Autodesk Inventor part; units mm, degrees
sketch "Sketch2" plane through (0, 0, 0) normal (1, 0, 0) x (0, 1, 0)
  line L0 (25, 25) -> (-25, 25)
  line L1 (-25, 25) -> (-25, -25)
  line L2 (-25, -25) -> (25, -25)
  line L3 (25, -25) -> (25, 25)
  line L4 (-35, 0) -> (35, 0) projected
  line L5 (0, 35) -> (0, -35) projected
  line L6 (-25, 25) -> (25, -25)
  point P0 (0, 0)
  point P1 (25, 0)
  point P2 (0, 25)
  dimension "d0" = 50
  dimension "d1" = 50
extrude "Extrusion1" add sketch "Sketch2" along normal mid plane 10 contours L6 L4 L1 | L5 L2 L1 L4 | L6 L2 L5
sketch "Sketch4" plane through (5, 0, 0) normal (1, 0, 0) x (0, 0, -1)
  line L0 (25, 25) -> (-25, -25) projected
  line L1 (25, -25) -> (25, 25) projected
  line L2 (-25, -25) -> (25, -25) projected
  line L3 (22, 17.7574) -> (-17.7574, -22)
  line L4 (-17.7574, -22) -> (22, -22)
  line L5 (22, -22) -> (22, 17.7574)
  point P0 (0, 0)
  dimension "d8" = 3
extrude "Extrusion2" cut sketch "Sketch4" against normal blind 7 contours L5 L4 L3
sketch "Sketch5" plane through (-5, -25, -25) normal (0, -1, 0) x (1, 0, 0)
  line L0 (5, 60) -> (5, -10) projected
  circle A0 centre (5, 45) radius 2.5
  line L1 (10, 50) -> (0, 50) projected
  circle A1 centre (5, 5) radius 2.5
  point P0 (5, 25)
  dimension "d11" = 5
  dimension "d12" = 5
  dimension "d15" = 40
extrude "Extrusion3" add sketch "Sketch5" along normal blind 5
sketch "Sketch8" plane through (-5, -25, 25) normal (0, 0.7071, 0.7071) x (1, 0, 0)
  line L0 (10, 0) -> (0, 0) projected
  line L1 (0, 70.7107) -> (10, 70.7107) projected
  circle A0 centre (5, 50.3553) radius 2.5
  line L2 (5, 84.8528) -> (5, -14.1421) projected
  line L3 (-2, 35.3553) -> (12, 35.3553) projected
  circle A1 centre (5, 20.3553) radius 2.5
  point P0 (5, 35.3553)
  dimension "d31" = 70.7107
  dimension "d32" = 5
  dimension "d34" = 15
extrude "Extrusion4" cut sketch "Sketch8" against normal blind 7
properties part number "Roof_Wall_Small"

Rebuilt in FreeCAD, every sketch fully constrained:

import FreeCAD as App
import Part
import Sketcher

V = App.Vector
Q = App.Units.Quantity


def add_polygon(sketch, points):
    """Adds a closed chain of lines whose ends are joined by coincident constraints."""
    first, n = sketch.GeometryCount, len(points)
    for a, b in zip(points, points[1:] + points[:1]):
        sketch.addGeometry(Part.LineSegment(App.Vector(*a, 0), App.Vector(*b, 0)), False)
    for i in range(n):
        sketch.addConstraint(Sketcher.Constraint("Coincident", first + i, 2, first + (i + 1) % n, 1))

doc = App.newDocument("Part")
body = doc.addObject("PartDesign::Body", "Body")

sketch1 = body.newObject("Sketcher::SketchObject", "Sketch")
sketch1.AttachmentSupport = (doc.getObject("YZ_Plane"), [""])
sketch1.MapMode = "FlatFace"
add_polygon(sketch1, [(-25, 25), (-25, -25), (25, -25)])
sketch1.addConstraint(Sketcher.Constraint("Vertical", 0))
sketch1.addConstraint(Sketcher.Constraint("Horizontal", 1))
sketch1.addConstraint(Sketcher.Constraint("Symmetric", 1, 2, 2, 2, -1, 1))
sketch1.addConstraint(Sketcher.Constraint("Equal", 1, 0))
sketch1.addConstraint(Sketcher.Constraint("DistanceX", 1, 1, 1, 2, Q("50 mm")))
pad1 = body.newObject("PartDesign::Pad", "Pad")
pad1.Profile = sketch1
pad1.Length = 10
pad1.Midplane = True

sketch2 = body.newObject("Sketcher::SketchObject", "Sketch001")
sketch2.AttachmentSupport = (doc.getObject("YZ_Plane"), [""])
sketch2.MapMode = "FlatFace"
sketch2.AttachmentOffset = App.Placement(V(0, 0, 5), App.Rotation())
add_polygon(sketch2, [(-22, -22), (17.7574, -22), (-22, 17.7574)])
sketch2.addConstraint(Sketcher.Constraint("Horizontal", 0))
sketch2.addConstraint(Sketcher.Constraint("Vertical", 2))
sketch2.addConstraint(Sketcher.Constraint("Equal", 0, 2))
sketch2.addConstraint(Sketcher.Constraint("DistanceY", 0, 2, -1, 1, Q("22 mm")))
sketch2.addConstraint(Sketcher.Constraint("DistanceX", 1, 2, -1, 1, Q("22 mm")))
sketch2.addConstraint(Sketcher.Constraint("DistanceX", 0, 1, 0, 2, Q("39.7574 mm")))
pocket1 = body.newObject("PartDesign::Pocket", "Pocket")
pocket1.Profile = sketch2
pocket1.Length = 7

sketch3 = body.newObject("Sketcher::SketchObject", "Sketch002")
sketch3.AttachmentSupport = (doc.getObject("XZ_Plane"), [""])
sketch3.MapMode = "FlatFace"
sketch3.AttachmentOffset = App.Placement(V(0, 0, 25), App.Rotation())
sketch3.addGeometry(Part.Circle(V(0, 20, 0), V(0, 0, 1), 2.5), False)
sketch3.addGeometry(Part.Circle(V(0, -20, 0), V(0, 0, 1), 2.5), False)
sketch3.addConstraint(Sketcher.Constraint("Equal", 0, 1))
sketch3.addConstraint(Sketcher.Constraint("Symmetric", 0, 3, 1, 3, -1, 1))
sketch3.addConstraint(Sketcher.Constraint("PointOnObject", 0, 3, -2))
sketch3.addConstraint(Sketcher.Constraint("Diameter", 0, Q("5 mm")))
sketch3.addConstraint(Sketcher.Constraint("DistanceY", 1, 3, 0, 3, Q("40 mm")))
pad2 = body.newObject("PartDesign::Pad", "Pad001")
pad2.Profile = sketch3
pad2.Length = 5

sketch4 = body.newObject("Sketcher::SketchObject", "Sketch003")
sketch4.Placement = App.Placement(V(-5, -25, 25), App.Rotation(V(1, 0, 0), V(0, 0.707106781, -0.707106781), V(0, 0.707106781, 0.707106781), "ZXY"))
sketch4.addGeometry(Part.Circle(V(5, 50.3553, 0), V(0, 0, 1), 2.5), False)
sketch4.addGeometry(Part.Circle(V(5, 20.3553, 0), V(0, 0, 1), 2.5), False)
sketch4.addConstraint(Sketcher.Constraint("Equal", 0, 1))
sketch4.addConstraint(Sketcher.Constraint("Vertical", 0, 3, 1, 3))
sketch4.addConstraint(Sketcher.Constraint("Diameter", 0, Q("5 mm")))
sketch4.addConstraint(Sketcher.Constraint("DistanceX", -1, 1, 0, 3, Q("5 mm")))
sketch4.addConstraint(Sketcher.Constraint("DistanceY", 1, 3, 0, 3, Q("30 mm")))
sketch4.addConstraint(Sketcher.Constraint("DistanceY", -1, 1, 0, 3, Q("50.3553 mm")))
pocket2 = body.newObject("PartDesign::Pocket", "Pocket001")
pocket2.Profile = sketch4
pocket2.Length = 7

doc.recompute()
